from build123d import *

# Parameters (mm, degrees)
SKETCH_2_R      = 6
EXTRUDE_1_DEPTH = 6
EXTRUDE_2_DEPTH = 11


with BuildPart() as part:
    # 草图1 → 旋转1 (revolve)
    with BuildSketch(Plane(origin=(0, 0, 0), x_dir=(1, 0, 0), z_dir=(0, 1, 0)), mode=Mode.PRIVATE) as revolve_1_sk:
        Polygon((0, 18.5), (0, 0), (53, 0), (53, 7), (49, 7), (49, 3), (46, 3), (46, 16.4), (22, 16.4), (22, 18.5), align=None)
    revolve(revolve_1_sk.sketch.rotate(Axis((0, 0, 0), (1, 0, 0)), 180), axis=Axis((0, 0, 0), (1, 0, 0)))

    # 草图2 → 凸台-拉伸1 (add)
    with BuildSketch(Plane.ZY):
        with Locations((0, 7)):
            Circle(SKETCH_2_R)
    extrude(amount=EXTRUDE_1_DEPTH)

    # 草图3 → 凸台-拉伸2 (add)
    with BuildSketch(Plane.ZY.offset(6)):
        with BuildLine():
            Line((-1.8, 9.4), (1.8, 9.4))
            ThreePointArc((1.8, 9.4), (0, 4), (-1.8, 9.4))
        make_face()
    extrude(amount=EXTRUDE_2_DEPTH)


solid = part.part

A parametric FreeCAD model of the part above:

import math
import FreeCAD as App
import Part
import Sketcher
from FreeCAD import Vector


def add_polygon(sketch, points):
    """Adds a closed chain of lines whose ends are joined by coincident constraints."""
    first, n = sketch.GeometryCount, len(points)
    for a, b in zip(points, points[1:] + points[:1]):
        sketch.addGeometry(Part.LineSegment(App.Vector(*a, 0), App.Vector(*b, 0)), False)
    for i in range(n):
        sketch.addConstraint(Sketcher.Constraint("Coincident", first + i, 2, first + (i + 1) % n, 1))

doc = App.newDocument("Part")
body = doc.addObject("PartDesign::Body", "Body")

# Sketch on XZ plane
sketch1 = body.newObject("Sketcher::SketchObject", "Sketch")
sketch1.AttachmentSupport = (doc.getObject("XZ_Plane"), [""])
sketch1.MapMode = "FlatFace"
add_polygon(sketch1, [(0, -18.5), (0, 0), (53, 0), (53, -7), (49, -7), (49, -3), (46, -3), (46, -16.4), (22, -16.4), (22, -18.5)])  # lines 0-9
sketch1.addConstraint([
    Sketcher.Constraint("Vertical", 0),
    Sketcher.Constraint("Horizontal", 1),
    Sketcher.Constraint("Vertical", 2),
    Sketcher.Constraint("Horizontal", 3),
    Sketcher.Constraint("Vertical", 4),
    Sketcher.Constraint("Horizontal", 5),
    Sketcher.Constraint("Vertical", 6),
    Sketcher.Constraint("Horizontal", 7),
    Sketcher.Constraint("Vertical", 8),
    Sketcher.Constraint("Horizontal", 9),
    Sketcher.Constraint("Coincident", 0, 2, -1, 1),
    Sketcher.Constraint("Equal", 3, 4),
    Sketcher.Constraint("DistanceX", 1, 1, 1, 2, 53.0),
    Sketcher.Constraint("DistanceX", 3, 2, 3, 1, 4.0),
    Sketcher.Constraint("DistanceX", 5, 2, 5, 1, 3.0),
    Sketcher.Constraint("DistanceX", 7, 2, 7, 1, 24.0),
    Sketcher.Constraint("DistanceY", 2, 2, 2, 1, 7.0),
    Sketcher.Constraint("DistanceY", 0, 1, 0, 2, 18.5),
    Sketcher.Constraint("DistanceY", 6, 2, 6, 1, 13.4),
])
revolution = body.newObject("PartDesign::Revolution", "Revolution")
revolution.Profile = sketch1
revolution.ReferenceAxis = (sketch1, ["H_Axis"])
revolution.Angle = 360

# Sketch on YZ plane
sketch2 = body.newObject("Sketcher::SketchObject", "Sketch001")
sketch2.AttachmentSupport = (doc.getObject("YZ_Plane"), [""])
sketch2.MapMode = "FlatFace"
sketch2.addGeometry(Part.Circle(Vector(7, 0, 0), Vector(0, 0, 1), 6), False)
sketch2.addConstraint([
    Sketcher.Constraint("PointOnObject", 0, 3, -1),
    Sketcher.Constraint("Diameter", 0, 12.0),
    Sketcher.Constraint("DistanceX", -1, 1, 0, 3, 7.0),
])
pad1 = body.newObject("PartDesign::Pad", "Pad")
pad1.Profile = sketch2
pad1.Length = 6
pad1.Reversed = True

# Sketch on YZ plane
sketch3 = body.newObject("Sketcher::SketchObject", "Sketch002")
sketch3.AttachmentSupport = (doc.getObject("YZ_Plane"), [""])
sketch3.MapMode = "FlatFace"
sketch3.AttachmentOffset = App.Placement(Vector(0, 0, -6), App.Rotation())
sketch3.addGeometry([
    Part.LineSegment(Vector(9.4, 1.8, 0), Vector(9.4, -1.8, 0)),
    Part.ArcOfCircle(Part.Circle(Vector(7, 0, 0), Vector(0, 0, 1), 3), math.radians(36.869898), math.radians(323.130102)),
], False)
sketch3.addConstraint([
    Sketcher.Constraint("Coincident", 0, 1, 1, 1),
    Sketcher.Constraint("Coincident", 1, 2, 0, 2),
    Sketcher.Constraint("Vertical", 0),
    Sketcher.Constraint("PointOnObject", 1, 3, -1),
    Sketcher.Constraint("Radius", 1, 3.0),
    Sketcher.Constraint("DistanceY", 0, 2, 0, 1, 3.6),
    Sketcher.Constraint("DistanceX", -1, 1, 1, 3, 7.0),
])
pad2 = body.newObject("PartDesign::Pad", "Pad001")
pad2.Profile = sketch3
pad2.Length = 11
pad2.Reversed = True

doc.recompute()
